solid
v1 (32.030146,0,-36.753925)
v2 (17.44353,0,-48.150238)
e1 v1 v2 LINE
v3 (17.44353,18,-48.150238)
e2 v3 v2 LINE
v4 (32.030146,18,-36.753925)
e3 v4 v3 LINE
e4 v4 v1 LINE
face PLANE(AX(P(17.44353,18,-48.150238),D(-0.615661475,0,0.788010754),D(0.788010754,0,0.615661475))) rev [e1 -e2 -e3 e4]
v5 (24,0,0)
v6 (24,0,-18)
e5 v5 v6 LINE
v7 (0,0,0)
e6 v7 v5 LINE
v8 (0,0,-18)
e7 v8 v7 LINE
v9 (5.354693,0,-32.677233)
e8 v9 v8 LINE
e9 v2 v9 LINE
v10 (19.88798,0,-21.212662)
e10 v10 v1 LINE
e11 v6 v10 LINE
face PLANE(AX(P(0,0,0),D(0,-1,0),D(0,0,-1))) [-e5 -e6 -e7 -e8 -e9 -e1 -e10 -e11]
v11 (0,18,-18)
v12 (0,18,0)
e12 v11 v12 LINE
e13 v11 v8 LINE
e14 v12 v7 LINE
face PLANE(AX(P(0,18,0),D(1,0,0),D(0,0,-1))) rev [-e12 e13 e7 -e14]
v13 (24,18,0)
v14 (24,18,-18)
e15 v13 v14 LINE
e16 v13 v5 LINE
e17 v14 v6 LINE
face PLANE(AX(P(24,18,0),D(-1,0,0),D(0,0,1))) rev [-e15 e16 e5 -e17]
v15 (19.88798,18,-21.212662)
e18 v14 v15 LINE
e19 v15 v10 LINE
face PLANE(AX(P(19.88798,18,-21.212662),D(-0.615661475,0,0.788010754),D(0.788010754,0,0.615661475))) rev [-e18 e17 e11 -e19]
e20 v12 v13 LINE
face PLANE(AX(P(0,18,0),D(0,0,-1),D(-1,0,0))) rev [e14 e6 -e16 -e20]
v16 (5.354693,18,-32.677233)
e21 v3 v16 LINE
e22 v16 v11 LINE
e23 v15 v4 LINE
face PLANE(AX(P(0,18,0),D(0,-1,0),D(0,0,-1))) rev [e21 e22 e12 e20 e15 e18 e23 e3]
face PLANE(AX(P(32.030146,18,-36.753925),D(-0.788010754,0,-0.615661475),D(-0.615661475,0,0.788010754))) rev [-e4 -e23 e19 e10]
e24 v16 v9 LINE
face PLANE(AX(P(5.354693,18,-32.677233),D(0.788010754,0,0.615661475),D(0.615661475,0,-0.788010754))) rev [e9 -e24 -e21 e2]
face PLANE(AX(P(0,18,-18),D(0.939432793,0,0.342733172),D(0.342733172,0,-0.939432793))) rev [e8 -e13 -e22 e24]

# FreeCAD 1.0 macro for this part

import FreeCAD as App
import Part
import Sketcher
Q = App.Units.Quantity


def add_polygon(sketch, points):
    """Adds a closed chain of lines whose ends are joined by coincident constraints."""
    first, n = sketch.GeometryCount, len(points)
    for a, b in zip(points, points[1:] + points[:1]):
        sketch.addGeometry(Part.LineSegment(App.Vector(*a, 0), App.Vector(*b, 0)), False)
    for i in range(n):
        sketch.addConstraint(Sketcher.Constraint("Coincident", first + i, 2, first + (i + 1) % n, 1))

doc = App.newDocument("Part")
params = doc.addObject("Spreadsheet::Sheet", "Params")
for row, (alias, value) in enumerate([
    ("sketch1_width", "24 mm"),
    ("sketch1_height", "18 mm"),
    ("pad1_length", "18 mm"),
], start=1):
    params.set(f"A{row}", alias)
    params.set(f"B{row}", "=" + value)
    params.setAlias(f"B{row}", alias)

body = doc.addObject("PartDesign::Body", "Body")

# Sketch on XZ plane
sketch1 = body.newObject("Sketcher::SketchObject", "Sketch")
sketch1.AttachmentSupport = (doc.getObject("XZ_Plane"), [""])
sketch1.MapMode = "FlatFace"
add_polygon(sketch1, [(0, 0), (24, 0), (24, -18), (20, -21), (32, -37), (17, -48), (5, -33), (0, -18)])  # lines 0-7
sketch1.addConstraint([
    Sketcher.Constraint("Horizontal", 0),
    Sketcher.Constraint("Vertical", 1),
    Sketcher.Constraint("Vertical", 7),
    Sketcher.Constraint("Coincident", 7, 2, -1, 1),
    Sketcher.Constraint("Perpendicular", 2, 3),
    Sketcher.Constraint("Perpendicular", 3, 4),
    Sketcher.Constraint("Perpendicular", 4, 5),
    Sketcher.Constraint("Horizontal", 1, 2, 6, 2),
    Sketcher.Constraint("DistanceX", 0, 1, 0, 2, Q("24 mm")),
    Sketcher.Constraint("DistanceY", 1, 2, 1, 1, Q("18 mm")),
    Sketcher.Constraint("Angle", 2, Q("-142 deg")),
    Sketcher.Constraint("Distance", 4, Q("18.510681 mm")),
    Sketcher.Constraint("DistanceX", -1, 1, 2, 2, Q("19.88798 mm")),
    Sketcher.Constraint("DistanceX", -1, 1, 4, 2, Q("17.44353 mm")),
    Sketcher.Constraint("DistanceY", 5, 2, 2, 2, Q("11.464571 mm")),
])
sketch1.setExpression("Constraints[16]", "Params.sketch1_width")
sketch1.setExpression("Constraints[17]", "Params.sketch1_height")
pad1 = body.newObject("PartDesign::Pad", "Pad")
pad1.Profile = sketch1
pad1.setExpression("Length", "Params.pad1_length")
pad1.Reversed = True

doc.recompute()
